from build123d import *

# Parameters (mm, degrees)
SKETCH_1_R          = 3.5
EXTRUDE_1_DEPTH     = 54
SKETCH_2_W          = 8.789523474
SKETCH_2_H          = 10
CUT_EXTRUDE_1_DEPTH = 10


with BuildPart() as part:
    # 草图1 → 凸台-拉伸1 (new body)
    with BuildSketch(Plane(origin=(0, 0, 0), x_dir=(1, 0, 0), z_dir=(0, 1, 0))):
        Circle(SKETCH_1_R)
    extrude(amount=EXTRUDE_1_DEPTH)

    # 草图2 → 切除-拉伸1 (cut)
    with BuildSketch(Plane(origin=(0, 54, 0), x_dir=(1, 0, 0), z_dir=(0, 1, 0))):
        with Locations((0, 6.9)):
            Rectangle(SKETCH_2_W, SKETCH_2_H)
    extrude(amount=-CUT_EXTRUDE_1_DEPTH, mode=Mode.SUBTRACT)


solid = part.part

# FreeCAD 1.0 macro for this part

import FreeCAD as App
import Part
import Sketcher

V = App.Vector
Q = App.Units.Quantity

doc = App.newDocument("Part")
body = doc.addObject("PartDesign::Body", "Body")

# Sketch on XZ plane
sketch1 = doc.addObject("Sketcher::SketchObject", "Sketch")
body.addObject(sketch1)
sketch1.AttachmentSupport = (doc.XZ_Plane, [""])
sketch1.MapMode = "FlatFace"
sketch1.addGeometry(Part.Circle(V(0, 0, 0), V(0, 0, 1), 3.5), False)
sketch1.addConstraint(Sketcher.Constraint("Coincident", 0, 3, -1, 1))
sketch1.addConstraint(Sketcher.Constraint("Diameter", 0, Q("7 mm")))
pad1 = doc.addObject("PartDesign::Pad", "Pad")
body.addObject(pad1)
pad1.Profile = sketch1
pad1.Length = 54
pad1.Reversed = True

# Sketch on XZ plane
sketch2 = doc.addObject("Sketcher::SketchObject", "Sketch001")
body.addObject(sketch2)
sketch2.AttachmentSupport = (doc.XZ_Plane, [""])
sketch2.MapMode = "FlatFace"
sketch2.AttachmentOffset = App.Placement(V(0, 0, -54), App.Rotation())
sketch2.addGeometry(Part.LineSegment(V(-4, -12, 0), V(-4, -2, 0)), False)
sketch2.addGeometry(Part.LineSegment(V(-4, -2, 0), V(4, -2, 0)), False)
sketch2.addGeometry(Part.LineSegment(V(4, -2, 0), V(4, -12, 0)), False)
sketch2.addGeometry(Part.LineSegment(V(4, -12, 0), V(-4, -12, 0)), False)
sketch2.addConstraint(Sketcher.Constraint("Coincident", 0, 2, 1, 1))
sketch2.addConstraint(Sketcher.Constraint("Coincident", 1, 2, 2, 1))
sketch2.addConstraint(Sketcher.Constraint("Coincident", 2, 2, 3, 1))
sketch2.addConstraint(Sketcher.Constraint("Coincident", 3, 2, 0, 1))
sketch2.addConstraint(Sketcher.Constraint("Vertical", 0))
sketch2.addConstraint(Sketcher.Constraint("Horizontal", 1))
sketch2.addConstraint(Sketcher.Constraint("Vertical", 2))
sketch2.addConstraint(Sketcher.Constraint("Horizontal", 3))
sketch2.addConstraint(Sketcher.Constraint("DistanceY", 0, 1, 0, 2, Q("10 mm")))
sketch2.addConstraint(Sketcher.Constraint("DistanceY", 0, 2, -1, 1, Q("1.9 mm")))
sketch2.addConstraint(Sketcher.Constraint("DistanceX", 1, 1, 1, 2, Q("8.789523 mm")))
sketch2.addConstraint(Sketcher.Constraint("DistanceX", 0, 2, -1, 1, Q("4.394762 mm")))
pocket1 = doc.addObject("PartDesign::Pocket", "Pocket")
body.addObject(pocket1)
pocket1.Profile = sketch2
pocket1.Length = 10
pocket1.Reversed = True

doc.recompute()
